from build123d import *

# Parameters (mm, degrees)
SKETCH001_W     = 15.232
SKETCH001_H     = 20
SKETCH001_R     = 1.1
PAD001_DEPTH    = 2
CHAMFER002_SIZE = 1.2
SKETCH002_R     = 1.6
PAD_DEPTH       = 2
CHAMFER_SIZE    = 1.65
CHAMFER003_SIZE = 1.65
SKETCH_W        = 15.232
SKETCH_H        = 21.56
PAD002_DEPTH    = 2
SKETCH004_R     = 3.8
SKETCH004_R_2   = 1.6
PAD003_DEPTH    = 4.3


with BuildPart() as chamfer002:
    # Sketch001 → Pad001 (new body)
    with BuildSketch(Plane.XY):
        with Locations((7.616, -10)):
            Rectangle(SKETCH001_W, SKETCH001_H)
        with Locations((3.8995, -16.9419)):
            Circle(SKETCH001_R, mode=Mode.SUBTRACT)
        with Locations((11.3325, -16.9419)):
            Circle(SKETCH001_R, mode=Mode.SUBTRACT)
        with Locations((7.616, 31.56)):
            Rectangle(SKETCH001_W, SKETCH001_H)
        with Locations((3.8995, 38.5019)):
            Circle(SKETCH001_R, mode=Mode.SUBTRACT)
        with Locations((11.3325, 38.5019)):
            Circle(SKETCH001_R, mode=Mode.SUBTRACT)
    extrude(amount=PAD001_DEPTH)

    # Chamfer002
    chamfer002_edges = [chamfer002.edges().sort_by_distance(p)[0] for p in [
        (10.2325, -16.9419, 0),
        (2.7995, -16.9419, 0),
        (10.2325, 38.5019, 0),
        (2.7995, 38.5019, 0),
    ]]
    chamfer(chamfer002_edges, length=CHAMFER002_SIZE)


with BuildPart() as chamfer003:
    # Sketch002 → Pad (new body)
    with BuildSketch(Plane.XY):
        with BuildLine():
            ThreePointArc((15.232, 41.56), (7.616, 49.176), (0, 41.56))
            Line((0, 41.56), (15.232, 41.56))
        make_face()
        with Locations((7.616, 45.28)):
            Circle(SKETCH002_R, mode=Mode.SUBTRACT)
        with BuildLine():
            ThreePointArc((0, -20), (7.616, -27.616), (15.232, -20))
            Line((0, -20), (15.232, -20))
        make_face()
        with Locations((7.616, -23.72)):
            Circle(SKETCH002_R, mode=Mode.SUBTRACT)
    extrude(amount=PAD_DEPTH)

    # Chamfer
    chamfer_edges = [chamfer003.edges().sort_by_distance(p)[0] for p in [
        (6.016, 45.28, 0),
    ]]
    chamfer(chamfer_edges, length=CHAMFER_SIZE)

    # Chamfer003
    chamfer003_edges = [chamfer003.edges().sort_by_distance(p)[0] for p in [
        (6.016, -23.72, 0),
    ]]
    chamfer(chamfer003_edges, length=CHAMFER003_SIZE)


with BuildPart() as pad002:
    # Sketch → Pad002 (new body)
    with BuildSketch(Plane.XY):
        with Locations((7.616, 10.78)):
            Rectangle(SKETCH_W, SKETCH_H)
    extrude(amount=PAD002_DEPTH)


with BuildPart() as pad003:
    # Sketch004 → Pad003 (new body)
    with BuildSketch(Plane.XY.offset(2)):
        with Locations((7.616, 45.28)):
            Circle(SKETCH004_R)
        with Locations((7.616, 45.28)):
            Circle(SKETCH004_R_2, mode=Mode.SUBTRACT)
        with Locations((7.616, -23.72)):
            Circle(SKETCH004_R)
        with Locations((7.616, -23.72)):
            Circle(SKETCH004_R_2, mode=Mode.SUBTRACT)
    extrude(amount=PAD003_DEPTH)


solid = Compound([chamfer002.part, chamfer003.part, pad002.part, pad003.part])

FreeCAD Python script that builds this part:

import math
import FreeCAD as App
import Part
import Sketcher

V = App.Vector


def edges_at(feature, points):
    """Names of the edges that pass closest to the given points."""
    edges = feature.Shape.Edges
    near = lambda p: min(range(len(edges)), key=lambda i: edges[i].distToShape(Part.Vertex(*p))[0])
    return sorted({f"Edge{near(p) + 1}" for p in points})

doc = App.newDocument("Part")
params = doc.addObject("Spreadsheet::Sheet", "Params")
for row, (alias, value) in enumerate([
    ("sketch1_diameter", "2.2 mm"),
    ("sketch1_height", "20 mm"),
    ("pad1_length", "2 mm"),
    ("chamfer_size", "1.2 mm"),
    ("sketch2_diameter", "3.2 mm"),
    ("pad2_length", "2 mm"),
    ("chamfer2_size", "1.65 mm"),
    ("chamfer3_size", "1.65 mm"),
    ("sketch3_height", "21.56 mm"),
    ("pad3_length", "2 mm"),
    ("sketch4_diameter", "7.6 mm"),
    ("sketch4_diameter2", "3.2 mm"),
    ("pad4_length", "4.3 mm"),
], start=1):
    params.set(f"A{row}", alias)
    params.set(f"B{row}", "=" + value)
    params.setAlias(f"B{row}", alias)

body = doc.addObject("PartDesign::Body", "Body")
body.AllowCompound = True

# Sketch on XY plane
sketch1 = body.newObject("Sketcher::SketchObject", "Sketch")
sketch1.AttachmentSupport = (doc.getObject("XY_Plane"), [""])
sketch1.MapMode = "FlatFace"
sketch1.addGeometry([
    Part.LineSegment(V(0, 0, 0), V(0, -20, 0)),  # 0
    Part.LineSegment(V(0, -20, 0), V(15.2, -20, 0)),  # 1
    Part.LineSegment(V(15.2, -20, 0), V(15.2, 0, 0)),  # 2
    Part.LineSegment(V(15.2, 0, 0), V(0, 0, 0)),  # 3
    Part.Circle(V(3.9, -16.9, 0), V(0, 0, 1), 1.1),  # 4
    Part.Circle(V(11.3, -16.9, 0), V(0, 0, 1), 1.1),  # 5
    Part.LineSegment(V(0, 41.6, 0), V(0, 21.6, 0)),  # 6
    Part.LineSegment(V(0, 21.6, 0), V(15.2, 21.6, 0)),  # 7
    Part.LineSegment(V(15.2, 21.6, 0), V(15.2, 41.6, 0)),  # 8
    Part.LineSegment(V(15.2, 41.6, 0), V(0, 41.6, 0)),  # 9
    Part.Circle(V(3.9, 38.5, 0), V(0, 0, 1), 1.1),  # 10
    Part.Circle(V(11.3, 38.5, 0), V(0, 0, 1), 1.1),  # 11
], False)
sketch1.addConstraint([
    Sketcher.Constraint("Coincident", 0, 2, 1, 1),
    Sketcher.Constraint("Coincident", 1, 2, 2, 1),
    Sketcher.Constraint("Coincident", 2, 2, 3, 1),
    Sketcher.Constraint("Coincident", 3, 2, 0, 1),
    Sketcher.Constraint("Coincident", 6, 2, 7, 1),
    Sketcher.Constraint("Coincident", 7, 2, 8, 1),
    Sketcher.Constraint("Coincident", 8, 2, 9, 1),
    Sketcher.Constraint("Coincident", 9, 2, 6, 1),
    Sketcher.Constraint("Vertical", 0),
    Sketcher.Constraint("Horizontal", 1),
    Sketcher.Constraint("Vertical", 2),
    Sketcher.Constraint("Horizontal", 3),
    Sketcher.Constraint("Vertical", 6),
    Sketcher.Constraint("Horizontal", 7),
    Sketcher.Constraint("Vertical", 8),
    Sketcher.Constraint("Horizontal", 9),
    Sketcher.Constraint("Coincident", 3, 2, -1, 1),
    Sketcher.Constraint("Equal", 4, 5),
    Sketcher.Constraint("Equal", 5, 10),
    Sketcher.Constraint("Equal", 10, 11),
    Sketcher.Constraint("PointOnObject", 6, 2, -2),
    Sketcher.Constraint("Horizontal", 4, 3, 5, 3),
    Sketcher.Constraint("Horizontal", 10, 3, 11, 3),
    Sketcher.Constraint("Vertical", 4, 3, 10, 3),
    Sketcher.Constraint("Vertical", 5, 3, 11, 3),
    Sketcher.Constraint("Vertical", 2, 2, 7, 2),
    Sketcher.Constraint("Equal", 2, 6),
    Sketcher.Constraint("Diameter", 4, 2.2),
    Sketcher.Constraint("DistanceY", 0, 2, 0, 1, 20.0),
    Sketcher.Constraint("DistanceX", 1, 1, 1, 2, 15.232),
    Sketcher.Constraint("DistanceY", -1, 1, 6, 2, 21.56),
    Sketcher.Constraint("DistanceX", 4, 3, 5, 3, 7.433),
    Sketcher.Constraint("DistanceX", -1, 1, 4, 3, 3.8995),
    Sketcher.Constraint("DistanceY", 4, 3, -1, 1, 16.9419),
    Sketcher.Constraint("DistanceY", -1, 1, 10, 3, 38.5019),
])
sketch1.setExpression("Constraints[27]", "Params.sketch1_diameter")
sketch1.setExpression("Constraints[28]", "Params.sketch1_height")
pad1 = body.newObject("PartDesign::Pad", "Pad")
pad1.Profile = sketch1
pad1.setExpression("Length", "Params.pad1_length")
doc.recompute()

chamfer = body.newObject("PartDesign::Chamfer", "Chamfer")
chamfer.Base = (pad1, edges_at(pad1, [
    (10.232, -16.942, 0),
    (2.8, -16.942, 0),
    (10.232, 38.502, 0),
    (2.8, 38.502, 0),
]))
chamfer.setExpression("Size", "Params.chamfer_size")
body2 = doc.addObject("PartDesign::Body", "Body001")
body2.AllowCompound = True

# Sketch on XY plane
sketch2 = body2.newObject("Sketcher::SketchObject", "Sketch001")
sketch2.AttachmentSupport = (doc.getObject("XY_Plane001"), [""])
sketch2.MapMode = "FlatFace"
sketch2.addGeometry([
    Part.ArcOfCircle(Part.Circle(V(7.6, 41.6, 0), V(0, 0, 1), 7.6), math.radians(0), math.radians(180)),  # 0
    Part.LineSegment(V(0, 41.6, 0), V(15.2, 41.6, 0)),  # 1
    Part.Circle(V(7.6, 45.3, 0), V(0, 0, 1), 1.6),  # 2
    Part.ArcOfCircle(Part.Circle(V(7.6, -20, 0), V(0, 0, 1), 7.6), math.radians(180), math.radians(360)),  # 3
    Part.LineSegment(V(15.2, -20, 0), V(0, -20, 0)),  # 4
    Part.Circle(V(7.6, -23.7, 0), V(0, 0, 1), 1.6),  # 5
], False)
sketch2.addConstraint([
    Sketcher.Constraint("Coincident", 0, 1, 1, 2),
    Sketcher.Constraint("Coincident", 1, 1, 0, 2),
    Sketcher.Constraint("Coincident", 3, 1, 4, 2),
    Sketcher.Constraint("Coincident", 4, 1, 3, 2),
    Sketcher.Constraint("Horizontal", 1),
    Sketcher.Constraint("Horizontal", 4),
    Sketcher.Constraint("Equal", 0, 3),
    Sketcher.Constraint("Equal", 2, 5),
    Sketcher.Constraint("PointOnObject", 1, 1, -2),
    Sketcher.Constraint("PointOnObject", 3, 1, -2),
    Sketcher.Constraint("Vertical", 0, 3, 2, 3),
    Sketcher.Constraint("Vertical", 3, 3, 5, 3),
    Sketcher.Constraint("Diameter", 2, 3.2),
    Sketcher.Constraint("DistanceY", 3, 3, -1, 1, 20.0),
    Sketcher.Constraint("DistanceY", 3, 1, -1, 1, 20.0),
    Sketcher.Constraint("Radius", 0, 7.616),
    Sketcher.Constraint("DistanceY", 5, 3, 2, 3, 69.0),
    Sketcher.Constraint("DistanceY", -1, 1, 0, 3, 41.56),
    Sketcher.Constraint("DistanceY", -1, 1, 2, 3, 45.28),
    Sketcher.Constraint("DistanceY", -1, 1, 0, 1, 41.56),
])
sketch2.setExpression("Constraints[12]", "Params.sketch2_diameter")
pad2 = body2.newObject("PartDesign::Pad", "Pad001")
pad2.Profile = sketch2
pad2.setExpression("Length", "Params.pad2_length")
doc.recompute()

chamfer2 = body2.newObject("PartDesign::Chamfer", "Chamfer001")
chamfer2.Base = (pad2, edges_at(pad2, [(6.016, 45.28, 0)]))
chamfer2.setExpression("Size", "Params.chamfer2_size")
doc.recompute()

chamfer3 = body2.newObject("PartDesign::Chamfer", "Chamfer002")
chamfer3.Base = (chamfer2, edges_at(chamfer2, [(6.016, -23.72, 0)]))
chamfer3.setExpression("Size", "Params.chamfer3_size")
body3 = doc.addObject("PartDesign::Body", "Body002")

# Sketch on XY plane
sketch3 = body3.newObject("Sketcher::SketchObject", "Sketch002")
sketch3.AttachmentSupport = (doc.getObject("XY_Plane002"), [""])
sketch3.MapMode = "FlatFace"
sketch3.addGeometry([
    Part.LineSegment(V(0, 22, 0), V(0, 0, 0)),
    Part.LineSegment(V(0, 0, 0), V(15, 0, 0)),
    Part.LineSegment(V(15, 0, 0), V(15, 22, 0)),
    Part.LineSegment(V(15, 22, 0), V(0, 22, 0)),
], False)
sketch3.addConstraint([
    Sketcher.Constraint("Coincident", 0, 2, 1, 1),
    Sketcher.Constraint("Coincident", 1, 2, 2, 1),
    Sketcher.Constraint("Coincident", 2, 2, 3, 1),
    Sketcher.Constraint("Coincident", 3, 2, 0, 1),
    Sketcher.Constraint("Vertical", 0),
    Sketcher.Constraint("Horizontal", 1),
    Sketcher.Constraint("Vertical", 2),
    Sketcher.Constraint("Horizontal", 3),
    Sketcher.Constraint("Coincident", 0, 2, -1, 1),
    Sketcher.Constraint("DistanceY", 0, 2, 0, 1, 21.56),
    Sketcher.Constraint("DistanceX", 1, 1, 1, 2, 15.232),
])
sketch3.setExpression("Constraints[9]", "Params.sketch3_height")
pad3 = body3.newObject("PartDesign::Pad", "Pad002")
pad3.Profile = sketch3
pad3.setExpression("Length", "Params.pad3_length")
body4 = doc.addObject("PartDesign::Body", "Body003")
body4.AllowCompound = True

# Sketch on XY plane
sketch4 = body4.newObject("Sketcher::SketchObject", "Sketch003")
sketch4.AttachmentSupport = (doc.getObject("XY_Plane003"), [""])
sketch4.MapMode = "FlatFace"
sketch4.AttachmentOffset = App.Placement(V(0, 0, 2), App.Rotation())
sketch4.addGeometry([
    Part.Circle(V(7.6, 45.3, 0), V(0, 0, 1), 3.8),
    Part.Circle(V(7.6, 45.3, 0), V(0, 0, 1), 1.6),
    Part.Circle(V(7.6, -23.7, 0), V(0, 0, 1), 3.8),
    Part.Circle(V(7.6, -23.7, 0), V(0, 0, 1), 1.6),
], False)
sketch4.addConstraint([
    Sketcher.Constraint("Coincident", 1, 3, 0, 3),
    Sketcher.Constraint("Coincident", 3, 3, 2, 3),
    Sketcher.Constraint("Equal", 0, 2),
    Sketcher.Constraint("Equal", 1, 3),
    Sketcher.Constraint("Vertical", 1, 3, 2, 3),
    Sketcher.Constraint("Diameter", 0, 7.6),
    Sketcher.Constraint("Diameter", 1, 3.2),
    Sketcher.Constraint("DistanceY", 2, 3, 0, 3, 69.0),
    Sketcher.Constraint("DistanceY", -1, 1, 0, 3, 45.28),
    Sketcher.Constraint("DistanceX", -1, 1, 0, 3, 7.616),
])
sketch4.setExpression("Constraints[5]", "Params.sketch4_diameter")
sketch4.setExpression("Constraints[6]", "Params.sketch4_diameter2")
pad4 = body4.newObject("PartDesign::Pad", "Pad003")
pad4.Profile = sketch4
pad4.setExpression("Length", "Params.pad4_length")

doc.recompute()
